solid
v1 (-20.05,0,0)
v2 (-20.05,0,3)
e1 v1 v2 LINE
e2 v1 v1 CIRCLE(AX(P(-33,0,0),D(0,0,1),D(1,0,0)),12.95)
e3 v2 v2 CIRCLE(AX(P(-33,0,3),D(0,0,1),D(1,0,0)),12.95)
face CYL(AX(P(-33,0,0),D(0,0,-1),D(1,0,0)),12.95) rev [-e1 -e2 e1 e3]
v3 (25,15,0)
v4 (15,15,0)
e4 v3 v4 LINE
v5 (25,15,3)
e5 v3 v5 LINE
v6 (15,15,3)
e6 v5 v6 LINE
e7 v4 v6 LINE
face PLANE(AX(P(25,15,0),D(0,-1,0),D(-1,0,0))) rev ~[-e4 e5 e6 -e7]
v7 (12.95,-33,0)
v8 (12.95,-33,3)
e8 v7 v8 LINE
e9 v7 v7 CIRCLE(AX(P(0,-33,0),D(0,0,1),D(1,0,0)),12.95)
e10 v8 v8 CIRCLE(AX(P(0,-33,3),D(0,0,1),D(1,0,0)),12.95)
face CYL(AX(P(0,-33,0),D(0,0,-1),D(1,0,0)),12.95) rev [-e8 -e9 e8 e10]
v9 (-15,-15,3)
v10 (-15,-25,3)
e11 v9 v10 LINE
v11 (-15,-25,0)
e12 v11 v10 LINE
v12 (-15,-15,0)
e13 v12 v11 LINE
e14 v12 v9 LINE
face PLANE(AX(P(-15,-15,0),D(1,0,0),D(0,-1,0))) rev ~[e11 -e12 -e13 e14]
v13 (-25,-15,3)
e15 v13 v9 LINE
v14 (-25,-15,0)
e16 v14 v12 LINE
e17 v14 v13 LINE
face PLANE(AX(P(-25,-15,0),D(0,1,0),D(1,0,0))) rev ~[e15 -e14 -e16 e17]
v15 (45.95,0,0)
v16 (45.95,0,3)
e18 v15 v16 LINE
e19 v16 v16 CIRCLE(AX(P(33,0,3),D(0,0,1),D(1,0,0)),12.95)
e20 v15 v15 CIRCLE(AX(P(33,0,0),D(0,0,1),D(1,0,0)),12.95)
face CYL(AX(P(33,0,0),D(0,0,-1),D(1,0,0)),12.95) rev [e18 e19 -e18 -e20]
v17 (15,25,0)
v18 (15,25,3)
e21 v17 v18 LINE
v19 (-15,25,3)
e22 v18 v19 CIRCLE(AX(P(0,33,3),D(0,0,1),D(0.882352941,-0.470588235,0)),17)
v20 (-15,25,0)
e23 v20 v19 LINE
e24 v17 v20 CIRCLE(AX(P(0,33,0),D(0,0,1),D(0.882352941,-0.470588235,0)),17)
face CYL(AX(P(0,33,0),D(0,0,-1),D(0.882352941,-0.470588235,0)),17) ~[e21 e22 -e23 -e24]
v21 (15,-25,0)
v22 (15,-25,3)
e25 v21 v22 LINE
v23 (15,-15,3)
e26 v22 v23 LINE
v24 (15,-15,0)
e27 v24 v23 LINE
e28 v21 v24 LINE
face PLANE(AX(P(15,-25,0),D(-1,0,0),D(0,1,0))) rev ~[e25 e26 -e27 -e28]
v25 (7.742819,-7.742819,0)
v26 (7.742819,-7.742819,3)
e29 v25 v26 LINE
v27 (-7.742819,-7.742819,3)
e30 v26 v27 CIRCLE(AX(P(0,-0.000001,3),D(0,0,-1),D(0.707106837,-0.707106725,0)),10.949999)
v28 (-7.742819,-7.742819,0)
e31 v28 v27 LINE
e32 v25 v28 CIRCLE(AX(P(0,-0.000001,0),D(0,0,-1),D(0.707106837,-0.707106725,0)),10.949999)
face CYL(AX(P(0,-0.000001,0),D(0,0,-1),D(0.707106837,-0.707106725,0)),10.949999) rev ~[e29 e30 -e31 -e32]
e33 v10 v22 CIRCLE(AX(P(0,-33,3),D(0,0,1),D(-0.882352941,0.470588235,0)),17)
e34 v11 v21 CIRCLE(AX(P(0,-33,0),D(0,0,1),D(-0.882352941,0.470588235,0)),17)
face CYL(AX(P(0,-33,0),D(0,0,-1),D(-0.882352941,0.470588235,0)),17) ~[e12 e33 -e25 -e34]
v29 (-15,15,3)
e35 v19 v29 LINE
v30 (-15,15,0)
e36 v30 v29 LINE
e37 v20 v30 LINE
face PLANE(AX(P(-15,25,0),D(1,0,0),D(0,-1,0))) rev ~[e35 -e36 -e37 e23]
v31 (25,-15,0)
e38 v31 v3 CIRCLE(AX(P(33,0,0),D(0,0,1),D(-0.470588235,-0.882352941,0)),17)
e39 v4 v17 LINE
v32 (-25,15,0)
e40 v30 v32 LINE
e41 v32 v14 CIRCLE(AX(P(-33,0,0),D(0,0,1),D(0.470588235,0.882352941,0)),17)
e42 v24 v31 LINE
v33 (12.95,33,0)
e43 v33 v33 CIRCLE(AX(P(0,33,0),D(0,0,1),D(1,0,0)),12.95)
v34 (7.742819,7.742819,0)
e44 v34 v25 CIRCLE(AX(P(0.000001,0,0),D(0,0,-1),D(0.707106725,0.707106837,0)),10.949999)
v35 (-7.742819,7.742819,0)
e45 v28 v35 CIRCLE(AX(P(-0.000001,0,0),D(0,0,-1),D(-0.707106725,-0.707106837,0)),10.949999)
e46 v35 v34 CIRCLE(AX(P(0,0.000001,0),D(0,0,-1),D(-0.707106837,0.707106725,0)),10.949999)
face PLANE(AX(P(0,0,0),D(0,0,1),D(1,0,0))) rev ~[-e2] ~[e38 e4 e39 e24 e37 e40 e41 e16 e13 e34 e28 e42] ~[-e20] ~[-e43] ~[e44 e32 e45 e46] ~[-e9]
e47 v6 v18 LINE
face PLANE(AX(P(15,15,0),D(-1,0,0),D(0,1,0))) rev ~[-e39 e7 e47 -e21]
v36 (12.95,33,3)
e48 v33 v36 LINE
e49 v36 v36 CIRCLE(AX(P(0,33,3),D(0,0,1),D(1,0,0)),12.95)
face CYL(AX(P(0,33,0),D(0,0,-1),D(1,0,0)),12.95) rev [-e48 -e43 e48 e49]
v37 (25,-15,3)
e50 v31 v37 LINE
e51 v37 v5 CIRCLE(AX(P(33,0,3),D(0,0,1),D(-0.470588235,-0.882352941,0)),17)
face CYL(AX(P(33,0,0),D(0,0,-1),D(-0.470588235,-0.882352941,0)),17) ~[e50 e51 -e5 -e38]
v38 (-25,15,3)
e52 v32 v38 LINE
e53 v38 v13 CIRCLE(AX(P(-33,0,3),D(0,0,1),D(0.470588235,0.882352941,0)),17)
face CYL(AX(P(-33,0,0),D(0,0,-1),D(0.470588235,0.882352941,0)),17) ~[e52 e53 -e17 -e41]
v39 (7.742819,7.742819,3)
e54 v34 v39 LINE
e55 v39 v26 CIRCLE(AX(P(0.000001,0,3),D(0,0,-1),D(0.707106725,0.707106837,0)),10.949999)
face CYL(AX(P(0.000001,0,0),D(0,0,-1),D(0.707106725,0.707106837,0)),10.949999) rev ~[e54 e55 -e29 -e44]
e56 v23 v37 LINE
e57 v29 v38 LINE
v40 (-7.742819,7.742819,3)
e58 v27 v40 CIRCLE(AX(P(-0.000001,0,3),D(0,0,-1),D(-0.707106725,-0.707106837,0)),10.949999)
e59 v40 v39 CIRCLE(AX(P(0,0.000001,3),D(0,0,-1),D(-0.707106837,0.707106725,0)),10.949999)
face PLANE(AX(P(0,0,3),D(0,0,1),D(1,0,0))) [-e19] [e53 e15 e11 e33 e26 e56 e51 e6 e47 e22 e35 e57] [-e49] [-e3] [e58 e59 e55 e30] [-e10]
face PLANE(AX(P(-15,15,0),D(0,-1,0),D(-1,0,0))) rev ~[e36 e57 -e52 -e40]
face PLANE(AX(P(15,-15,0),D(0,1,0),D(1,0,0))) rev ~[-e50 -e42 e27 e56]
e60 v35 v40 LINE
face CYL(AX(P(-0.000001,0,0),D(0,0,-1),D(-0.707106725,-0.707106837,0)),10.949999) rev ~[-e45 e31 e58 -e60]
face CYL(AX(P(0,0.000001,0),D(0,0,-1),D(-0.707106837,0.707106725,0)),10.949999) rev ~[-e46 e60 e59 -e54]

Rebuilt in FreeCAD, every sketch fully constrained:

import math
import FreeCAD as App
import Part
import Sketcher
from FreeCAD import Vector

doc = App.newDocument("Part")
body = doc.addObject("PartDesign::Body", "Body")

# Sketch on XY plane
sketch1 = body.newObject("Sketcher::SketchObject", "Sketch")
sketch1.AttachmentSupport = (doc.getObject("XY_Plane"), [""])
sketch1.MapMode = "FlatFace"
sketch1.addGeometry([
    Part.LineSegment(Vector(-15, 15, 0), Vector(-25, 15, 0)),  # 0
    Part.ArcOfCircle(Part.Circle(Vector(-33, 0, 0), Vector(0, 0, 1), 17), math.radians(62), math.radians(298)),  # 1
    Part.LineSegment(Vector(-25, -15, 0), Vector(-15, -15, 0)),  # 2
    Part.LineSegment(Vector(-15, -15, 0), Vector(-15, -25, 0)),  # 3
    Part.ArcOfCircle(Part.Circle(Vector(0, -33, 0), Vector(0, 0, 1), 17), math.radians(152), math.radians(388)),  # 4
    Part.LineSegment(Vector(15, -25, 0), Vector(15, -15, 0)),  # 5
    Part.LineSegment(Vector(15, -15, 0), Vector(25, -15, 0)),  # 6
    Part.ArcOfCircle(Part.Circle(Vector(33, 0, 0), Vector(0, 0, 1), 17), math.radians(-118), math.radians(118)),  # 7
    Part.LineSegment(Vector(25, 15, 0), Vector(15, 15, 0)),  # 8
    Part.LineSegment(Vector(15, 15, 0), Vector(15, 25, 0)),  # 9
    Part.ArcOfCircle(Part.Circle(Vector(0, 33, 0), Vector(0, 0, 1), 17), math.radians(-28), math.radians(208)),  # 10
    Part.LineSegment(Vector(-15, 25, 0), Vector(-15, 15, 0)),  # 11
    Part.Circle(Vector(0, -33, 0), Vector(0, 0, 1), 13),  # 12
    Part.Circle(Vector(-33, 0, 0), Vector(0, 0, 1), 13),  # 13
    Part.ArcOfCircle(Part.Circle(Vector(0, 0, 0), Vector(0, 0, 1), 11), math.radians(-135), math.radians(-45)),  # 14
    Part.ArcOfCircle(Part.Circle(Vector(0, 0, 0), Vector(0, 0, 1), 11), math.radians(135), math.radians(225)),  # 15
    Part.ArcOfCircle(Part.Circle(Vector(0, 0, 0), Vector(0, 0, 1), 11), math.radians(45), math.radians(135)),  # 16
    Part.ArcOfCircle(Part.Circle(Vector(0, 0, 0), Vector(0, 0, 1), 11), math.radians(-45), math.radians(45)),  # 17
    Part.Circle(Vector(33, 0, 0), Vector(0, 0, 1), 13),  # 18
    Part.Circle(Vector(0, 33, 0), Vector(0, 0, 1), 13),  # 19
], False)
sketch1.addConstraint([
    Sketcher.Constraint("Coincident", 0, 2, 1, 1),
    Sketcher.Constraint("Coincident", 1, 2, 2, 1),
    Sketcher.Constraint("Coincident", 2, 2, 3, 1),
    Sketcher.Constraint("Coincident", 3, 2, 4, 1),
    Sketcher.Constraint("Coincident", 4, 2, 5, 1),
    Sketcher.Constraint("Coincident", 5, 2, 6, 1),
    Sketcher.Constraint("Coincident", 6, 2, 7, 1),
    Sketcher.Constraint("Coincident", 7, 2, 8, 1),
    Sketcher.Constraint("Coincident", 8, 2, 9, 1),
    Sketcher.Constraint("Coincident", 9, 2, 10, 1),
    Sketcher.Constraint("Coincident", 10, 2, 11, 1),
    Sketcher.Constraint("Coincident", 11, 2, 0, 1),
    Sketcher.Constraint("Tangent", 14, 1, 15, 2),
    Sketcher.Constraint("Tangent", 15, 1, 16, 2),
    Sketcher.Constraint("Tangent", 16, 1, 17, 2),
    Sketcher.Constraint("Tangent", 17, 1, 14, 2),
    Sketcher.Constraint("Horizontal", 0),
    Sketcher.Constraint("Horizontal", 2),
    Sketcher.Constraint("Vertical", 3),
    Sketcher.Constraint("Vertical", 5),
    Sketcher.Constraint("Horizontal", 6),
    Sketcher.Constraint("Horizontal", 8),
    Sketcher.Constraint("Vertical", 9),
    Sketcher.Constraint("Vertical", 11),
    Sketcher.Constraint("Coincident", 14, 3, -1, 1),
    Sketcher.Constraint("Coincident", 12, 3, 4, 3),
    Sketcher.Constraint("Coincident", 13, 3, 1, 3),
    Sketcher.Constraint("Coincident", 18, 3, 7, 3),
    Sketcher.Constraint("Coincident", 19, 3, 10, 3),
    Sketcher.Constraint("Equal", 1, 4),
    Sketcher.Constraint("Equal", 4, 7),
    Sketcher.Constraint("Equal", 7, 10),
    Sketcher.Constraint("Equal", 12, 13),
    Sketcher.Constraint("Equal", 14, 15),
    Sketcher.Constraint("Equal", 13, 18),
    Sketcher.Constraint("Equal", 18, 19),
    Sketcher.Constraint("Symmetric", 1, 3, 7, 3, -1, 1),
    Sketcher.Constraint("Symmetric", 4, 3, 10, 3, -1, 1),
    Sketcher.Constraint("Symmetric", 2, 2, 8, 2, -1, 1),
    Sketcher.Constraint("Symmetric", 5, 2, 11, 2, -1, 1),
    Sketcher.Constraint("Symmetric", 3, 2, 4, 2, -2),
    Sketcher.Constraint("Symmetric", 1, 2, 6, 2, -2),
    Sketcher.Constraint("Horizontal", 15, 1, 16, 1),
    Sketcher.Constraint("Horizontal", 14, 1, 17, 1),
    Sketcher.Constraint("Vertical", 14, 1, 15, 1),
    Sketcher.Constraint("Equal", 8, 3),
    Sketcher.Constraint("Radius", 1, 17.0),
    Sketcher.Constraint("Diameter", 12, 25.9),
    Sketcher.Constraint("DistanceX", 0, 2, 0, 1, 10.0),
    Sketcher.Constraint("Radius", 14, 10.949999),
    Sketcher.Constraint("DistanceX", 1, 3, -1, 1, 33.0),
    Sketcher.Constraint("DistanceY", 4, 3, -1, 1, 33.0),
    Sketcher.Constraint("DistanceX", 14, 1, -1, 1, 7.742819),
])
pad1 = body.newObject("PartDesign::Pad", "Pad")
pad1.Profile = sketch1
pad1.Length = 3

doc.recompute()
